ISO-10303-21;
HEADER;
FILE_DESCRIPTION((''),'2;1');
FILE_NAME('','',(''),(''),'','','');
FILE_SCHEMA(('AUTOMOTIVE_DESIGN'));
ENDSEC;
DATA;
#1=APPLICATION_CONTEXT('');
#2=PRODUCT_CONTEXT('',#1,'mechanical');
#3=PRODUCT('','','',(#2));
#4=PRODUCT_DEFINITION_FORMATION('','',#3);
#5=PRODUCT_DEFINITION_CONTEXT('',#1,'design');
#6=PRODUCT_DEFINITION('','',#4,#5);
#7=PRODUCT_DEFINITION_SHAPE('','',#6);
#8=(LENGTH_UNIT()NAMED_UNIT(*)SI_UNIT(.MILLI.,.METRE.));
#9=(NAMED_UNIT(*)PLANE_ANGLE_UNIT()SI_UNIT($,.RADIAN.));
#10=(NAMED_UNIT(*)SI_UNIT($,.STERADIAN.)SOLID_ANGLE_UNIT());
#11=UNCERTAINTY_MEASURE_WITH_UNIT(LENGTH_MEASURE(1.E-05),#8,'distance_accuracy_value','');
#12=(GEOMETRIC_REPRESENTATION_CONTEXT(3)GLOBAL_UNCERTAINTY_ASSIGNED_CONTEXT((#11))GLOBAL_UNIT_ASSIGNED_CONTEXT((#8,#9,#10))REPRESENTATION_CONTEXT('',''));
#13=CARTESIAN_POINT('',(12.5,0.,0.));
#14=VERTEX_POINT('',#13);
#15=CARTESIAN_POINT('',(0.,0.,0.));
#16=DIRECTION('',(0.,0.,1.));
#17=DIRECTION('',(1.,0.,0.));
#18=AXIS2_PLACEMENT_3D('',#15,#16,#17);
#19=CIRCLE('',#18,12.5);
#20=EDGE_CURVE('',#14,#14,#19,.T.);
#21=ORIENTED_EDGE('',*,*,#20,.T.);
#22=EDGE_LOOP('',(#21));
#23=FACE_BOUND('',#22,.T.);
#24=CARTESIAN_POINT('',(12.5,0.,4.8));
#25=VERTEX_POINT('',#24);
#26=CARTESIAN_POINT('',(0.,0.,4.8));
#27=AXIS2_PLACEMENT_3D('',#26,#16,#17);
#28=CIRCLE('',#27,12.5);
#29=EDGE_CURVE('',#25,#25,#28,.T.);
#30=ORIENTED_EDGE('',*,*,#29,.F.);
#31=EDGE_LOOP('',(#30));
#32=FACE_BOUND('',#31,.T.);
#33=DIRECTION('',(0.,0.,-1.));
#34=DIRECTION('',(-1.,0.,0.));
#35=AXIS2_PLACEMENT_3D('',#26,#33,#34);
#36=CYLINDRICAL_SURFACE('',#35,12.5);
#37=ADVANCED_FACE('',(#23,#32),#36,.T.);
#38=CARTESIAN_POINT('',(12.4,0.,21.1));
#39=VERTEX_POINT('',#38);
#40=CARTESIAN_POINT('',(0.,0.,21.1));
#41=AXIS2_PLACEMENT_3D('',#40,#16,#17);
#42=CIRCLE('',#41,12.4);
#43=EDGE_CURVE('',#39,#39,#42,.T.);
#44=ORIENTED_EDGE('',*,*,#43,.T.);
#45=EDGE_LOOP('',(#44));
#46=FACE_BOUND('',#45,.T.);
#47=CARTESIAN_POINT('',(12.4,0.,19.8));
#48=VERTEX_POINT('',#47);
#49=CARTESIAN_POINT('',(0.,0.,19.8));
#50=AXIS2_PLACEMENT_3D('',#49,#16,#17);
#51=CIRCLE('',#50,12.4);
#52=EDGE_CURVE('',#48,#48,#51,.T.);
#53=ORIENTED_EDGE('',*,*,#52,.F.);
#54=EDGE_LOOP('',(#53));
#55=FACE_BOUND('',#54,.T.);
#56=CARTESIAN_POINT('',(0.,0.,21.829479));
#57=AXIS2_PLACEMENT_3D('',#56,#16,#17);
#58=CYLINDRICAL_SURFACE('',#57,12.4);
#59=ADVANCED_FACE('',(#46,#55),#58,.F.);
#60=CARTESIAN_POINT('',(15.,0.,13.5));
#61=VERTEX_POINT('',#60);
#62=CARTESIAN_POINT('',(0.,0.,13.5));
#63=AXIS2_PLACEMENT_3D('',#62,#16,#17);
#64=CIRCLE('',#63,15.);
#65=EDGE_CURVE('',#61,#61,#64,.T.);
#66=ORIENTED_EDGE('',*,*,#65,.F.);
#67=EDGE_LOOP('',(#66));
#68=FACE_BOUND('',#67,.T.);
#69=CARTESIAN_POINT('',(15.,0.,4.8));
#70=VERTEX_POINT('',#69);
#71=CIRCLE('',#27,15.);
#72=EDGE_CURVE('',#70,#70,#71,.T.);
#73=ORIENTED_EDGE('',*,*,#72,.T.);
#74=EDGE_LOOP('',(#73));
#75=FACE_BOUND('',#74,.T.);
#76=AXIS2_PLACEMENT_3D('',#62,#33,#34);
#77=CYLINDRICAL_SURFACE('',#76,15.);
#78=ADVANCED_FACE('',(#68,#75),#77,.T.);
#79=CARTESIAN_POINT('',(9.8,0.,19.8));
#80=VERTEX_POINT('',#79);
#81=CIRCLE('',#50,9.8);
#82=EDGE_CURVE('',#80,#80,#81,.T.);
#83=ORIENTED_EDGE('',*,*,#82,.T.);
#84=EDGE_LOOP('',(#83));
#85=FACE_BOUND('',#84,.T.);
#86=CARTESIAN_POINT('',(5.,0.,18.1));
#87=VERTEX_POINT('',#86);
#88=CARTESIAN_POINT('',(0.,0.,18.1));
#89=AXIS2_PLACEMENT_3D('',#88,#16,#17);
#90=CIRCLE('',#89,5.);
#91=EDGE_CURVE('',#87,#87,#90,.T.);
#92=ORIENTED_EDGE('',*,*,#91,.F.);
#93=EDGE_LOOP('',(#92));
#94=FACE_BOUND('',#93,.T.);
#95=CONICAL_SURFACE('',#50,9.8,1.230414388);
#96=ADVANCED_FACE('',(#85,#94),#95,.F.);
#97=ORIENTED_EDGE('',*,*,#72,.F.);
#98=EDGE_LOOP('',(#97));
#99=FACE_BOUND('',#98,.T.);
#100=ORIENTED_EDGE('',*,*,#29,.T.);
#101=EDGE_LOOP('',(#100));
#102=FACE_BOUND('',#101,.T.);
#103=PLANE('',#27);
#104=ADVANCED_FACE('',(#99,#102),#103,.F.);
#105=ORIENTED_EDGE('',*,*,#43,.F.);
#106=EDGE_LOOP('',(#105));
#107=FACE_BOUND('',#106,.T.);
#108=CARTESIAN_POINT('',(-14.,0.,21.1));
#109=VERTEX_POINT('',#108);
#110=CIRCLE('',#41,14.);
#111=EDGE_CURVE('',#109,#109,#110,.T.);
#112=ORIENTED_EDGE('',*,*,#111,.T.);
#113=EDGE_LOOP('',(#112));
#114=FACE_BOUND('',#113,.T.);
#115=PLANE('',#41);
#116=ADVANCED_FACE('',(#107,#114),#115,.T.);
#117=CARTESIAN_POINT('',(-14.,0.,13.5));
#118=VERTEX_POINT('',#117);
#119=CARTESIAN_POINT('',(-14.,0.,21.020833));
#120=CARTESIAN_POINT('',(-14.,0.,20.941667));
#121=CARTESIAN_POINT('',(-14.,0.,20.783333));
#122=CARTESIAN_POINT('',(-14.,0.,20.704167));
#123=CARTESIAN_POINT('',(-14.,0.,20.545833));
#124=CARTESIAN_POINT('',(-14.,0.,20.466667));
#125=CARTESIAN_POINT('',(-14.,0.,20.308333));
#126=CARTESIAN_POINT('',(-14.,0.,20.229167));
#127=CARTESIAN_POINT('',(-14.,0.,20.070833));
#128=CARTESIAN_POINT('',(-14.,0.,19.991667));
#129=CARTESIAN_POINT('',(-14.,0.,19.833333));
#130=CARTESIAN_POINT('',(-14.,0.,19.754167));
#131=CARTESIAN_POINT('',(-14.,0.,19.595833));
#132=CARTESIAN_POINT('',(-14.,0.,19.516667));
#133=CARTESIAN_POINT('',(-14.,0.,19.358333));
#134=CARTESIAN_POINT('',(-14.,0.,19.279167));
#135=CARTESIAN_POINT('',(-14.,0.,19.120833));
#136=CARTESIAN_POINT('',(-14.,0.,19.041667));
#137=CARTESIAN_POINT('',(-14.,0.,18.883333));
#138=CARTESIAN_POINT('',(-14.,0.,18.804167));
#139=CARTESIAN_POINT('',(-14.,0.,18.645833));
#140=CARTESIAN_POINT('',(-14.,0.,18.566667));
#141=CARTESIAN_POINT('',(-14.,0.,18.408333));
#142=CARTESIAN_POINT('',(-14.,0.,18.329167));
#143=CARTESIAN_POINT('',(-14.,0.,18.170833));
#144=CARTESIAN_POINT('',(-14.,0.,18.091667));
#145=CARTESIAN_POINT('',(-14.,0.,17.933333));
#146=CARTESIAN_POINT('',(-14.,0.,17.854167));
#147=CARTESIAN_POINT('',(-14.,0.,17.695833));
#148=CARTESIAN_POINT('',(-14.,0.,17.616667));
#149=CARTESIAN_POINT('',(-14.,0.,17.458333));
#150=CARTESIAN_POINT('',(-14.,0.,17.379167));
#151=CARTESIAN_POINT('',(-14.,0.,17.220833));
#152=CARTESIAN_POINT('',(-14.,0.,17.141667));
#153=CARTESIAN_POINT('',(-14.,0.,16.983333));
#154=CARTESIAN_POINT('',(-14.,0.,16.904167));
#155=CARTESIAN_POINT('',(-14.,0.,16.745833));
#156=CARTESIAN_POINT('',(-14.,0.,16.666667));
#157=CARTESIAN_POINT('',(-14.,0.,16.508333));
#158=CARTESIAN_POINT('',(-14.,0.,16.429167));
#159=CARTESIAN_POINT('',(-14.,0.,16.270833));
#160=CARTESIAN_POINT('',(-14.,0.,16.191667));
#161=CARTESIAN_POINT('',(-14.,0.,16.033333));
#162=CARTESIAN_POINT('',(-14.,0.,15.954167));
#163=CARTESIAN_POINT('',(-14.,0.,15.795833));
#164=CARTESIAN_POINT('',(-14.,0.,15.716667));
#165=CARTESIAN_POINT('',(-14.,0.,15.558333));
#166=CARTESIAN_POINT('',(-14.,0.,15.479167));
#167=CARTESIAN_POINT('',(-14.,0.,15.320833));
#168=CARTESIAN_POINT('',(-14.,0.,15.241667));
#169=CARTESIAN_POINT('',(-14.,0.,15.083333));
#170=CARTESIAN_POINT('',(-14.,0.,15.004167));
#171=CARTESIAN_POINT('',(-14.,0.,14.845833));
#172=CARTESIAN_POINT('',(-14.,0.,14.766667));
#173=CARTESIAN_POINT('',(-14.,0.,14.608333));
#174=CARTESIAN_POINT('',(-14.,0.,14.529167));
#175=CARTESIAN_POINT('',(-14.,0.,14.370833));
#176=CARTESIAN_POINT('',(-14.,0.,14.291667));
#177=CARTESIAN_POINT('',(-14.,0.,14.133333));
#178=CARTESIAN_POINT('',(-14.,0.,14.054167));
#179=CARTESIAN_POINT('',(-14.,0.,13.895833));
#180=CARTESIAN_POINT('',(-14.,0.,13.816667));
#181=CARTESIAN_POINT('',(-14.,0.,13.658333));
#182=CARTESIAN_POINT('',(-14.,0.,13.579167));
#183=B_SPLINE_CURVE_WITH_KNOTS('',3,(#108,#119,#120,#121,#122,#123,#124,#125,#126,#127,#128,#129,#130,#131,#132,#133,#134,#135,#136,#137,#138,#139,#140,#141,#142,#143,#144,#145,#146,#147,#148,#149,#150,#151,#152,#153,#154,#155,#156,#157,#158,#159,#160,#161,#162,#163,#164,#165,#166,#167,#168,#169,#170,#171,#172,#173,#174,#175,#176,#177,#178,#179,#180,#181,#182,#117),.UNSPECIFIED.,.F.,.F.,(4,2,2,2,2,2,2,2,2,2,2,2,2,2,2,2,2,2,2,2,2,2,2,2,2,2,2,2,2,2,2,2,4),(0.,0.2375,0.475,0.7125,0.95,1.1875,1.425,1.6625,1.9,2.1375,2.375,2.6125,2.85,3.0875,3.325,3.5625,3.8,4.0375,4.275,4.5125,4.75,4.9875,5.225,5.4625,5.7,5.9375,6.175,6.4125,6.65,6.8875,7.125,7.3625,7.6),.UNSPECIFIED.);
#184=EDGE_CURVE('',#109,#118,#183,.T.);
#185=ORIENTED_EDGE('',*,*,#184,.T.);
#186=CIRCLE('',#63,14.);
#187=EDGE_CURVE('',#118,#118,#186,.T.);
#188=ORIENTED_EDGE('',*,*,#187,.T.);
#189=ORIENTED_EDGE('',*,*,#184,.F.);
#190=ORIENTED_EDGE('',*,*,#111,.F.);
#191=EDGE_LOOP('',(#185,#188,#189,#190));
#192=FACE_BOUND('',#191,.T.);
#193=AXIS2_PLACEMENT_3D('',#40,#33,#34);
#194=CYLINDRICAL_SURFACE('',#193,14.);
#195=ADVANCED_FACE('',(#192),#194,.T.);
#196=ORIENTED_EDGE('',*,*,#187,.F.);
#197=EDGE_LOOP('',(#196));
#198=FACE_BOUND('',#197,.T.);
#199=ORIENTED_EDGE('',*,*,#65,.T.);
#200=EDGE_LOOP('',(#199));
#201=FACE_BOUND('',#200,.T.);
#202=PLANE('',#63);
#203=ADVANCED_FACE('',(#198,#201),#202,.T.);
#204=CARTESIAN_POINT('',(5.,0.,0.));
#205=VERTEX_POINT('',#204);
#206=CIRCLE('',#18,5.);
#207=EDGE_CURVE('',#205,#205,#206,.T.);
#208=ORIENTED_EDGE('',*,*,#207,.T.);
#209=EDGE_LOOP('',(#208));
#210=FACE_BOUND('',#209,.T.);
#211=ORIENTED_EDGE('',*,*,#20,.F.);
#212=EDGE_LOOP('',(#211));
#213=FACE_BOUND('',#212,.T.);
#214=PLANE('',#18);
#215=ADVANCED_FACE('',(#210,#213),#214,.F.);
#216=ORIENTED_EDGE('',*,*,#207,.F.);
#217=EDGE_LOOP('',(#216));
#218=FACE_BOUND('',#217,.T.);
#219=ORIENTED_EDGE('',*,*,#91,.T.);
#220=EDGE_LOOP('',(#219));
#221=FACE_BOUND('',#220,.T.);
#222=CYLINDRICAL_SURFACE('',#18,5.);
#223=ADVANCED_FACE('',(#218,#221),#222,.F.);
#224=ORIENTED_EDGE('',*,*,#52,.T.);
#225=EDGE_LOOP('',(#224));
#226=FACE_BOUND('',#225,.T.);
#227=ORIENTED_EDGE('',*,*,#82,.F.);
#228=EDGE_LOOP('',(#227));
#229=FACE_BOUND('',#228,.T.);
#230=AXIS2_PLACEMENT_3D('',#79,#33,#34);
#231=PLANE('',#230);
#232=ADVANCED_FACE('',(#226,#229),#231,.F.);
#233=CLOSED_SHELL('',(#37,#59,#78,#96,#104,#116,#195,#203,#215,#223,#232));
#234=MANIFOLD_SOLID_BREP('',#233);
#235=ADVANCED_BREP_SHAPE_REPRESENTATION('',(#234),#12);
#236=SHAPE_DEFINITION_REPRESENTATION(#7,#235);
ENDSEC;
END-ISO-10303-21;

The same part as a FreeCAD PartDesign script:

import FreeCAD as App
import Part
import Sketcher
Q = App.Units.Quantity

doc = App.newDocument("Part")
params = doc.addObject("Spreadsheet::Sheet", "Params")
for row, (alias, value) in enumerate([
    ("sketch1_diameter", "25 mm"),
    ("pad1_length", "4.8 mm"),
    ("sketch2_diameter", "30 mm"),
    ("pad2_length", "8.7 mm"),
    ("sketch3_diameter", "28 mm"),
    ("pad3_length", "7.6 mm"),
    ("sketch4_width", "5 mm"),
    ("sketch4_width2", "12.4 mm"),
    ("sketch4_width3", "2.6 mm"),
    ("groove_angle", "360 deg"),
    ("sketch5_diameter", "10 mm"),
], start=1):
    params.set(f"A{row}", alias)
    params.set(f"B{row}", "=" + value)
    params.setAlias(f"B{row}", alias)

body = doc.addObject("PartDesign::Body", "Body")

sketch1 = body.newObject("Sketcher::SketchObject", "Sketch")
sketch1.AttachmentSupport = (doc.getObject("XY_Plane"), [""])
sketch1.MapMode = "FlatFace"
sketch1.addGeometry(Part.Circle(App.Vector(0, 0, 0), App.Vector(0, 0, 1), 12), False)
sketch1.addConstraint([
    Sketcher.Constraint("Coincident", 0, 3, -1, 1),
    Sketcher.Constraint("Diameter", 0, Q("25 mm")),
])
sketch1.setExpression("Constraints[1]", "Params.sketch1_diameter")
pad1 = body.newObject("PartDesign::Pad", "Pad")
pad1.Profile = sketch1
pad1.setExpression("Length", "Params.pad1_length")

sketch2 = body.newObject("Sketcher::SketchObject", "Sketch001")
sketch2.AttachmentSupport = (doc.getObject("XY_Plane"), [""])
sketch2.MapMode = "FlatFace"
sketch2.AttachmentOffset = App.Placement(App.Vector(0, 0, 4.8), App.Rotation())
sketch2.addGeometry(Part.Circle(App.Vector(0, 0, 0), App.Vector(0, 0, 1), 15), False)
sketch2.addConstraint([
    Sketcher.Constraint("Coincident", 0, 3, -1, 1),
    Sketcher.Constraint("Diameter", 0, Q("30 mm")),
])
sketch2.setExpression("Constraints[1]", "Params.sketch2_diameter")
pad2 = body.newObject("PartDesign::Pad", "Pad001")
pad2.Profile = sketch2
pad2.setExpression("Length", "Params.pad2_length")

sketch3 = body.newObject("Sketcher::SketchObject", "Sketch002")
sketch3.AttachmentSupport = (doc.getObject("XY_Plane"), [""])
sketch3.MapMode = "FlatFace"
sketch3.AttachmentOffset = App.Placement(App.Vector(0, 0, 13.5), App.Rotation())
sketch3.addGeometry(Part.Circle(App.Vector(0, 0, 0), App.Vector(0, 0, 1), 14), False)
sketch3.addConstraint([
    Sketcher.Constraint("Coincident", 0, 3, -1, 1),
    Sketcher.Constraint("Diameter", 0, Q("28 mm")),
])
sketch3.setExpression("Constraints[1]", "Params.sketch3_diameter")
pad3 = body.newObject("PartDesign::Pad", "Pad002")
pad3.Profile = sketch3
pad3.setExpression("Length", "Params.pad3_length")

sketch4 = body.newObject("Sketcher::SketchObject", "Sketch003")
sketch4.AttachmentSupport = (doc.getObject("XZ_Plane"), [""])
sketch4.MapMode = "FlatFace"
sketch4.addGeometry([
    Part.LineSegment(App.Vector(5, 18.1, 0), App.Vector(0, 18.1, 0)),
    Part.LineSegment(App.Vector(0, 18.1, 0), App.Vector(0, 21.8, 0)),
    Part.LineSegment(App.Vector(0, 21.8, 0), App.Vector(12.4, 21.8, 0)),
    Part.LineSegment(App.Vector(12.4, 21.8, 0), App.Vector(12.4, 19.8, 0)),
    Part.LineSegment(App.Vector(12.4, 19.8, 0), App.Vector(9.8, 19.8, 0)),
    Part.LineSegment(App.Vector(9.8, 19.8, 0), App.Vector(5, 18.1, 0)),
], False)
sketch4.addConstraint([
    Sketcher.Constraint("Coincident", 0, 2, 1, 1),
    Sketcher.Constraint("Coincident", 1, 2, 2, 1),
    Sketcher.Constraint("Coincident", 2, 2, 3, 1),
    Sketcher.Constraint("Coincident", 3, 2, 4, 1),
    Sketcher.Constraint("Coincident", 4, 2, 5, 1),
    Sketcher.Constraint("Coincident", 5, 2, 0, 1),
    Sketcher.Constraint("Horizontal", 0),
    Sketcher.Constraint("Vertical", 1),
    Sketcher.Constraint("Horizontal", 2),
    Sketcher.Constraint("Vertical", 3),
    Sketcher.Constraint("Horizontal", 4),
    Sketcher.Constraint("PointOnObject", 0, 2, -2),
    Sketcher.Constraint("DistanceX", 0, 2, 0, 1, Q("5 mm")),
    Sketcher.Constraint("DistanceX", 2, 1, 2, 2, Q("12.4 mm")),
    Sketcher.Constraint("DistanceX", 4, 2, 4, 1, Q("2.6 mm")),
    Sketcher.Constraint("DistanceY", -1, 1, 0, 2, Q("18.1 mm")),
    Sketcher.Constraint("DistanceY", -1, 1, 3, 2, Q("19.8 mm")),
    Sketcher.Constraint("DistanceY", 1, 1, 1, 2, Q("3.729479 mm")),
])
sketch4.setExpression("Constraints[12]", "Params.sketch4_width")
sketch4.setExpression("Constraints[13]", "Params.sketch4_width2")
sketch4.setExpression("Constraints[14]", "Params.sketch4_width3")
groove = body.newObject("PartDesign::Groove", "Groove")
groove.Profile = sketch4
groove.ReferenceAxis = (sketch4, ["V_Axis"])
groove.setExpression("Angle", "Params.groove_angle")

sketch5 = body.newObject("Sketcher::SketchObject", "Sketch004")
sketch5.AttachmentSupport = (doc.getObject("XY_Plane"), [""])
sketch5.MapMode = "FlatFace"
sketch5.AttachmentOffset = App.Placement(App.Vector(0, 0, 18.1), App.Rotation())
sketch5.addGeometry(Part.Circle(App.Vector(0, 0, 0), App.Vector(0, 0, 1), 5), False)
sketch5.addConstraint([
    Sketcher.Constraint("Coincident", 0, 3, -1, 1),
    Sketcher.Constraint("Diameter", 0, Q("10 mm")),
])
sketch5.setExpression("Constraints[1]", "Params.sketch5_diameter")
pocket1 = body.newObject("PartDesign::Pocket", "Pocket")
pocket1.Profile = sketch5
pocket1.Type = "ThroughAll"

doc.recompute()
